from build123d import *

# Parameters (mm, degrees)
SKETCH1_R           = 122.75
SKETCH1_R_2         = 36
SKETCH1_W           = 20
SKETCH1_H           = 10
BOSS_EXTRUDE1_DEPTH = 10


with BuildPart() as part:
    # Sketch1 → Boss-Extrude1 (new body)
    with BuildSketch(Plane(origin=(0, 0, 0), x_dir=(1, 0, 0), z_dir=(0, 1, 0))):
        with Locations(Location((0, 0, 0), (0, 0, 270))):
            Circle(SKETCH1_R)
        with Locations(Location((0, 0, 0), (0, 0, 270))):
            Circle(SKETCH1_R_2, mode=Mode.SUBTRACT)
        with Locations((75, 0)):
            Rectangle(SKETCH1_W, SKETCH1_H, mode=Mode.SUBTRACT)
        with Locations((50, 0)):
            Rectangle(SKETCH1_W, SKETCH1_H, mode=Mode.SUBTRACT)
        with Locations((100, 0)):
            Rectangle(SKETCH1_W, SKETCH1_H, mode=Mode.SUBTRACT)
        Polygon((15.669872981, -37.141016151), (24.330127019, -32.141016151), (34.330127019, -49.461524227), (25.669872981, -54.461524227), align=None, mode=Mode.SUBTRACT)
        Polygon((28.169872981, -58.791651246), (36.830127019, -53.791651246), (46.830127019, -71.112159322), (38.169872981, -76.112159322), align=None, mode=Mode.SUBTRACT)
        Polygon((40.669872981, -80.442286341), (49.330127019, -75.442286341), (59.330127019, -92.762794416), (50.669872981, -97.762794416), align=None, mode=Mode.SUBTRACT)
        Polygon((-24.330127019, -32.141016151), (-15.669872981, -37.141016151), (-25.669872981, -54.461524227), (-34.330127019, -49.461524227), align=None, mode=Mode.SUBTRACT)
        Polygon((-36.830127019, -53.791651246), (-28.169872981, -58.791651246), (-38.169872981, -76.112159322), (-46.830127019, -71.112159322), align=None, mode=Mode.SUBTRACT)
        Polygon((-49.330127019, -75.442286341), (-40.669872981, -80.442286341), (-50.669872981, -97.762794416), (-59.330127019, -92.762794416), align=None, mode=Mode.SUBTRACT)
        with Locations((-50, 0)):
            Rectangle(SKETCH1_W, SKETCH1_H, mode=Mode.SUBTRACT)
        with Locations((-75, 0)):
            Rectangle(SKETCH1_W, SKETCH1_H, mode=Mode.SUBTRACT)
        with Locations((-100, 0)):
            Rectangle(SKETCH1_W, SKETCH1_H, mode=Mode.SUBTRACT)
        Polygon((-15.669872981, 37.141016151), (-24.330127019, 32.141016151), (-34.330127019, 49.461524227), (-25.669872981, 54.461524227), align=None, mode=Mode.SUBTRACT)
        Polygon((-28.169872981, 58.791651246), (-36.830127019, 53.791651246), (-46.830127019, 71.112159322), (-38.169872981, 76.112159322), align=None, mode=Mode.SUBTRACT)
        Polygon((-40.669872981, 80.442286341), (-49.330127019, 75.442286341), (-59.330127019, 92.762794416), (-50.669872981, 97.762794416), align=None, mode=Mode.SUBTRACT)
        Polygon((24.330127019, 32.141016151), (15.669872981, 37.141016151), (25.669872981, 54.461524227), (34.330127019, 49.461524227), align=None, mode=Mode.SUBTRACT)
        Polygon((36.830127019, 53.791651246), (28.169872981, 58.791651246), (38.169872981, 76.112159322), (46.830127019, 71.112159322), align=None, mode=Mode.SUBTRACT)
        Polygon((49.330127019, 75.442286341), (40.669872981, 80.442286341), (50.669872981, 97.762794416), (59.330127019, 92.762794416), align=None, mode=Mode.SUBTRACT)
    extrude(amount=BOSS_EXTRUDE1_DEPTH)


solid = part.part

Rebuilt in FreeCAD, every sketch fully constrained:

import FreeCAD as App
import Part
import Sketcher
Q = App.Units.Quantity

doc = App.newDocument("Part")
body = doc.addObject("PartDesign::Body", "Body")

sketch1 = doc.addObject("Sketcher::SketchObject", "Sketch")
body.addObject(sketch1)
sketch1.AttachmentSupport = (doc.XZ_Plane, [""])
sketch1.MapMode = "FlatFace"
sketch1.addGeometry(Part.Circle(App.Vector(0, 0, 0), App.Vector(0, 0, 1), 123), False)
sketch1.addGeometry(Part.LineSegment(App.Vector(-51, -98, 0), App.Vector(-41, -80, 0)), False)
sketch1.addGeometry(Part.LineSegment(App.Vector(-41, -80, 0), App.Vector(-49, -75, 0)), False)
sketch1.addGeometry(Part.LineSegment(App.Vector(-49, -75, 0), App.Vector(-59, -93, 0)), False)
sketch1.addGeometry(Part.LineSegment(App.Vector(-59, -93, 0), App.Vector(-51, -98, 0)), False)
sketch1.addGeometry(Part.LineSegment(App.Vector(-38, -76, 0), App.Vector(-28, -59, 0)), False)
sketch1.addGeometry(Part.LineSegment(App.Vector(-28, -59, 0), App.Vector(-37, -54, 0)), False)
sketch1.addGeometry(Part.LineSegment(App.Vector(-37, -54, 0), App.Vector(-47, -71, 0)), False)
sketch1.addGeometry(Part.LineSegment(App.Vector(-47, -71, 0), App.Vector(-38, -76, 0)), False)
sketch1.addGeometry(Part.LineSegment(App.Vector(-26, -54, 0), App.Vector(-16, -37, 0)), False)
sketch1.addGeometry(Part.LineSegment(App.Vector(-16, -37, 0), App.Vector(-24, -32, 0)), False)
sketch1.addGeometry(Part.LineSegment(App.Vector(-24, -32, 0), App.Vector(-34, -49, 0)), False)
sketch1.addGeometry(Part.LineSegment(App.Vector(-34, -49, 0), App.Vector(-26, -54, 0)), False)
sketch1.addGeometry(Part.LineSegment(App.Vector(-90, 5, 0), App.Vector(-110, 5, 0)), False)
sketch1.addGeometry(Part.LineSegment(App.Vector(-110, 5, 0), App.Vector(-110, -5, 0)), False)
sketch1.addGeometry(Part.LineSegment(App.Vector(-110, -5, 0), App.Vector(-90, -5, 0)), False)
sketch1.addGeometry(Part.LineSegment(App.Vector(-90, -5, 0), App.Vector(-90, 5, 0)), False)
sketch1.addGeometry(Part.LineSegment(App.Vector(-65, 5, 0), App.Vector(-85, 5, 0)), False)
sketch1.addGeometry(Part.LineSegment(App.Vector(-85, 5, 0), App.Vector(-85, -5, 0)), False)
sketch1.addGeometry(Part.LineSegment(App.Vector(-85, -5, 0), App.Vector(-65, -5, 0)), False)
sketch1.addGeometry(Part.LineSegment(App.Vector(-65, -5, 0), App.Vector(-65, 5, 0)), False)
sketch1.addGeometry(Part.LineSegment(App.Vector(-40, 5, 0), App.Vector(-60, 5, 0)), False)
sketch1.addGeometry(Part.LineSegment(App.Vector(-60, 5, 0), App.Vector(-60, -5, 0)), False)
sketch1.addGeometry(Part.LineSegment(App.Vector(-60, -5, 0), App.Vector(-40, -5, 0)), False)
sketch1.addGeometry(Part.LineSegment(App.Vector(-40, -5, 0), App.Vector(-40, 5, 0)), False)
sketch1.addGeometry(Part.LineSegment(App.Vector(-34, 49, 0), App.Vector(-24, 32, 0)), False)
sketch1.addGeometry(Part.LineSegment(App.Vector(-24, 32, 0), App.Vector(-16, 37, 0)), False)
sketch1.addGeometry(Part.LineSegment(App.Vector(-16, 37, 0), App.Vector(-26, 54, 0)), False)
sketch1.addGeometry(Part.LineSegment(App.Vector(-26, 54, 0), App.Vector(-34, 49, 0)), False)
sketch1.addGeometry(Part.LineSegment(App.Vector(-47, 71, 0), App.Vector(-37, 54, 0)), False)
sketch1.addGeometry(Part.LineSegment(App.Vector(-37, 54, 0), App.Vector(-28, 59, 0)), False)
sketch1.addGeometry(Part.LineSegment(App.Vector(-28, 59, 0), App.Vector(-38, 76, 0)), False)
sketch1.addGeometry(Part.LineSegment(App.Vector(-38, 76, 0), App.Vector(-47, 71, 0)), False)
sketch1.addGeometry(Part.LineSegment(App.Vector(-59, 93, 0), App.Vector(-49, 75, 0)), False)
sketch1.addGeometry(Part.LineSegment(App.Vector(-49, 75, 0), App.Vector(-41, 80, 0)), False)
sketch1.addGeometry(Part.LineSegment(App.Vector(-41, 80, 0), App.Vector(-51, 98, 0)), False)
sketch1.addGeometry(Part.LineSegment(App.Vector(-51, 98, 0), App.Vector(-59, 93, 0)), False)
sketch1.addGeometry(Part.LineSegment(App.Vector(59, -93, 0), App.Vector(49, -75, 0)), False)
sketch1.addGeometry(Part.LineSegment(App.Vector(49, -75, 0), App.Vector(41, -80, 0)), False)
sketch1.addGeometry(Part.LineSegment(App.Vector(41, -80, 0), App.Vector(51, -98, 0)), False)
sketch1.addGeometry(Part.LineSegment(App.Vector(51, -98, 0), App.Vector(59, -93, 0)), False)
sketch1.addGeometry(Part.LineSegment(App.Vector(47, -71, 0), App.Vector(37, -54, 0)), False)
sketch1.addGeometry(Part.LineSegment(App.Vector(37, -54, 0), App.Vector(28, -59, 0)), False)
sketch1.addGeometry(Part.LineSegment(App.Vector(28, -59, 0), App.Vector(38, -76, 0)), False)
sketch1.addGeometry(Part.LineSegment(App.Vector(38, -76, 0), App.Vector(47, -71, 0)), False)
sketch1.addGeometry(Part.LineSegment(App.Vector(34, -49, 0), App.Vector(24, -32, 0)), False)
sketch1.addGeometry(Part.LineSegment(App.Vector(24, -32, 0), App.Vector(16, -37, 0)), False)
sketch1.addGeometry(Part.LineSegment(App.Vector(16, -37, 0), App.Vector(26, -54, 0)), False)
sketch1.addGeometry(Part.LineSegment(App.Vector(26, -54, 0), App.Vector(34, -49, 0)), False)
sketch1.addGeometry(Part.LineSegment(App.Vector(85, 5, 0), App.Vector(65, 5, 0)), False)
sketch1.addGeometry(Part.LineSegment(App.Vector(65, 5, 0), App.Vector(65, -5, 0)), False)
sketch1.addGeometry(Part.LineSegment(App.Vector(65, -5, 0), App.Vector(85, -5, 0)), False)
sketch1.addGeometry(Part.LineSegment(App.Vector(85, -5, 0), App.Vector(85, 5, 0)), False)
sketch1.addGeometry(Part.LineSegment(App.Vector(110, 5, 0), App.Vector(90, 5, 0)), False)
sketch1.addGeometry(Part.LineSegment(App.Vector(90, 5, 0), App.Vector(90, -5, 0)), False)
sketch1.addGeometry(Part.LineSegment(App.Vector(90, -5, 0), App.Vector(110, -5, 0)), False)
sketch1.addGeometry(Part.LineSegment(App.Vector(110, -5, 0), App.Vector(110, 5, 0)), False)
sketch1.addGeometry(Part.Circle(App.Vector(0, 0, 0), App.Vector(0, 0, 1), 36), False)
sketch1.addGeometry(Part.LineSegment(App.Vector(26, 54, 0), App.Vector(16, 37, 0)), False)
sketch1.addGeometry(Part.LineSegment(App.Vector(16, 37, 0), App.Vector(24, 32, 0)), False)
sketch1.addGeometry(Part.LineSegment(App.Vector(24, 32, 0), App.Vector(34, 49, 0)), False)
sketch1.addGeometry(Part.LineSegment(App.Vector(34, 49, 0), App.Vector(26, 54, 0)), False)
sketch1.addGeometry(Part.LineSegment(App.Vector(60, 5, 0), App.Vector(40, 5, 0)), False)
sketch1.addGeometry(Part.LineSegment(App.Vector(40, 5, 0), App.Vector(40, -5, 0)), False)
sketch1.addGeometry(Part.LineSegment(App.Vector(40, -5, 0), App.Vector(60, -5, 0)), False)
sketch1.addGeometry(Part.LineSegment(App.Vector(60, -5, 0), App.Vector(60, 5, 0)), False)
sketch1.addGeometry(Part.LineSegment(App.Vector(38, 76, 0), App.Vector(28, 59, 0)), False)
sketch1.addGeometry(Part.LineSegment(App.Vector(28, 59, 0), App.Vector(37, 54, 0)), False)
sketch1.addGeometry(Part.LineSegment(App.Vector(37, 54, 0), App.Vector(47, 71, 0)), False)
sketch1.addGeometry(Part.LineSegment(App.Vector(47, 71, 0), App.Vector(38, 76, 0)), False)
sketch1.addGeometry(Part.LineSegment(App.Vector(51, 98, 0), App.Vector(41, 80, 0)), False)
sketch1.addGeometry(Part.LineSegment(App.Vector(41, 80, 0), App.Vector(49, 75, 0)), False)
sketch1.addGeometry(Part.LineSegment(App.Vector(49, 75, 0), App.Vector(59, 93, 0)), False)
sketch1.addGeometry(Part.LineSegment(App.Vector(59, 93, 0), App.Vector(51, 98, 0)), False)
sketch1.addConstraint(Sketcher.Constraint("Coincident", 1, 2, 2, 1))
sketch1.addConstraint(Sketcher.Constraint("Coincident", 2, 2, 3, 1))
sketch1.addConstraint(Sketcher.Constraint("Coincident", 3, 2, 4, 1))
sketch1.addConstraint(Sketcher.Constraint("Coincident", 4, 2, 1, 1))
sketch1.addConstraint(Sketcher.Constraint("Coincident", 5, 2, 6, 1))
sketch1.addConstraint(Sketcher.Constraint("Coincident", 6, 2, 7, 1))
sketch1.addConstraint(Sketcher.Constraint("Coincident", 7, 2, 8, 1))
sketch1.addConstraint(Sketcher.Constraint("Coincident", 8, 2, 5, 1))
sketch1.addConstraint(Sketcher.Constraint("Coincident", 9, 2, 10, 1))
sketch1.addConstraint(Sketcher.Constraint("Coincident", 10, 2, 11, 1))
sketch1.addConstraint(Sketcher.Constraint("Coincident", 11, 2, 12, 1))
sketch1.addConstraint(Sketcher.Constraint("Coincident", 12, 2, 9, 1))
sketch1.addConstraint(Sketcher.Constraint("Coincident", 13, 2, 14, 1))
sketch1.addConstraint(Sketcher.Constraint("Coincident", 14, 2, 15, 1))
sketch1.addConstraint(Sketcher.Constraint("Coincident", 15, 2, 16, 1))
sketch1.addConstraint(Sketcher.Constraint("Coincident", 16, 2, 13, 1))
sketch1.addConstraint(Sketcher.Constraint("Coincident", 17, 2, 18, 1))
sketch1.addConstraint(Sketcher.Constraint("Coincident", 18, 2, 19, 1))
sketch1.addConstraint(Sketcher.Constraint("Coincident", 19, 2, 20, 1))
sketch1.addConstraint(Sketcher.Constraint("Coincident", 20, 2, 17, 1))
sketch1.addConstraint(Sketcher.Constraint("Coincident", 21, 2, 22, 1))
sketch1.addConstraint(Sketcher.Constraint("Coincident", 22, 2, 23, 1))
sketch1.addConstraint(Sketcher.Constraint("Coincident", 23, 2, 24, 1))
sketch1.addConstraint(Sketcher.Constraint("Coincident", 24, 2, 21, 1))
sketch1.addConstraint(Sketcher.Constraint("Coincident", 25, 2, 26, 1))
sketch1.addConstraint(Sketcher.Constraint("Coincident", 26, 2, 27, 1))
sketch1.addConstraint(Sketcher.Constraint("Coincident", 27, 2, 28, 1))
sketch1.addConstraint(Sketcher.Constraint("Coincident", 28, 2, 25, 1))
sketch1.addConstraint(Sketcher.Constraint("Coincident", 29, 2, 30, 1))
sketch1.addConstraint(Sketcher.Constraint("Coincident", 30, 2, 31, 1))
sketch1.addConstraint(Sketcher.Constraint("Coincident", 31, 2, 32, 1))
sketch1.addConstraint(Sketcher.Constraint("Coincident", 32, 2, 29, 1))
sketch1.addConstraint(Sketcher.Constraint("Coincident", 33, 2, 34, 1))
sketch1.addConstraint(Sketcher.Constraint("Coincident", 34, 2, 35, 1))
sketch1.addConstraint(Sketcher.Constraint("Coincident", 35, 2, 36, 1))
sketch1.addConstraint(Sketcher.Constraint("Coincident", 36, 2, 33, 1))
sketch1.addConstraint(Sketcher.Constraint("Coincident", 37, 2, 38, 1))
sketch1.addConstraint(Sketcher.Constraint("Coincident", 38, 2, 39, 1))
sketch1.addConstraint(Sketcher.Constraint("Coincident", 39, 2, 40, 1))
sketch1.addConstraint(Sketcher.Constraint("Coincident", 40, 2, 37, 1))
sketch1.addConstraint(Sketcher.Constraint("Coincident", 41, 2, 42, 1))
sketch1.addConstraint(Sketcher.Constraint("Coincident", 42, 2, 43, 1))
sketch1.addConstraint(Sketcher.Constraint("Coincident", 43, 2, 44, 1))
sketch1.addConstraint(Sketcher.Constraint("Coincident", 44, 2, 41, 1))
sketch1.addConstraint(Sketcher.Constraint("Coincident", 45, 2, 46, 1))
sketch1.addConstraint(Sketcher.Constraint("Coincident", 46, 2, 47, 1))
sketch1.addConstraint(Sketcher.Constraint("Coincident", 47, 2, 48, 1))
sketch1.addConstraint(Sketcher.Constraint("Coincident", 48, 2, 45, 1))
sketch1.addConstraint(Sketcher.Constraint("Coincident", 49, 2, 50, 1))
sketch1.addConstraint(Sketcher.Constraint("Coincident", 50, 2, 51, 1))
sketch1.addConstraint(Sketcher.Constraint("Coincident", 51, 2, 52, 1))
sketch1.addConstraint(Sketcher.Constraint("Coincident", 52, 2, 49, 1))
sketch1.addConstraint(Sketcher.Constraint("Coincident", 53, 2, 54, 1))
sketch1.addConstraint(Sketcher.Constraint("Coincident", 54, 2, 55, 1))
sketch1.addConstraint(Sketcher.Constraint("Coincident", 55, 2, 56, 1))
sketch1.addConstraint(Sketcher.Constraint("Coincident", 56, 2, 53, 1))
sketch1.addConstraint(Sketcher.Constraint("Coincident", 58, 2, 59, 1))
sketch1.addConstraint(Sketcher.Constraint("Coincident", 59, 2, 60, 1))
sketch1.addConstraint(Sketcher.Constraint("Coincident", 60, 2, 61, 1))
sketch1.addConstraint(Sketcher.Constraint("Coincident", 61, 2, 58, 1))
sketch1.addConstraint(Sketcher.Constraint("Coincident", 62, 2, 63, 1))
sketch1.addConstraint(Sketcher.Constraint("Coincident", 63, 2, 64, 1))
sketch1.addConstraint(Sketcher.Constraint("Coincident", 64, 2, 65, 1))
sketch1.addConstraint(Sketcher.Constraint("Coincident", 65, 2, 62, 1))
sketch1.addConstraint(Sketcher.Constraint("Coincident", 66, 2, 67, 1))
sketch1.addConstraint(Sketcher.Constraint("Coincident", 67, 2, 68, 1))
sketch1.addConstraint(Sketcher.Constraint("Coincident", 68, 2, 69, 1))
sketch1.addConstraint(Sketcher.Constraint("Coincident", 69, 2, 66, 1))
sketch1.addConstraint(Sketcher.Constraint("Coincident", 70, 2, 71, 1))
sketch1.addConstraint(Sketcher.Constraint("Coincident", 71, 2, 72, 1))
sketch1.addConstraint(Sketcher.Constraint("Coincident", 72, 2, 73, 1))
sketch1.addConstraint(Sketcher.Constraint("Coincident", 73, 2, 70, 1))
sketch1.addConstraint(Sketcher.Constraint("Horizontal", 13))
sketch1.addConstraint(Sketcher.Constraint("Vertical", 14))
sketch1.addConstraint(Sketcher.Constraint("Horizontal", 15))
sketch1.addConstraint(Sketcher.Constraint("Vertical", 16))
sketch1.addConstraint(Sketcher.Constraint("Horizontal", 17))
sketch1.addConstraint(Sketcher.Constraint("Vertical", 18))
sketch1.addConstraint(Sketcher.Constraint("Horizontal", 19))
sketch1.addConstraint(Sketcher.Constraint("Vertical", 20))
sketch1.addConstraint(Sketcher.Constraint("Horizontal", 21))
sketch1.addConstraint(Sketcher.Constraint("Vertical", 22))
sketch1.addConstraint(Sketcher.Constraint("Horizontal", 23))
sketch1.addConstraint(Sketcher.Constraint("Vertical", 24))
sketch1.addConstraint(Sketcher.Constraint("Horizontal", 49))
sketch1.addConstraint(Sketcher.Constraint("Vertical", 50))
sketch1.addConstraint(Sketcher.Constraint("Horizontal", 51))
sketch1.addConstraint(Sketcher.Constraint("Vertical", 52))
sketch1.addConstraint(Sketcher.Constraint("Horizontal", 53))
sketch1.addConstraint(Sketcher.Constraint("Vertical", 54))
sketch1.addConstraint(Sketcher.Constraint("Horizontal", 55))
sketch1.addConstraint(Sketcher.Constraint("Vertical", 56))
sketch1.addConstraint(Sketcher.Constraint("Horizontal", 62))
sketch1.addConstraint(Sketcher.Constraint("Vertical", 63))
sketch1.addConstraint(Sketcher.Constraint("Horizontal", 64))
sketch1.addConstraint(Sketcher.Constraint("Vertical", 65))
sketch1.addConstraint(Sketcher.Constraint("Coincident", 0, 3, -1, 1))
sketch1.addConstraint(Sketcher.Constraint("Coincident", 57, 3, -1, 1))
sketch1.addConstraint(Sketcher.Constraint("Symmetric", 33, 2, 37, 2, -1, 1))
sketch1.addConstraint(Sketcher.Constraint("Symmetric", 34, 2, 38, 2, -1, 1))
sketch1.addConstraint(Sketcher.Constraint("Symmetric", 35, 2, 39, 2, -1, 1))
sketch1.addConstraint(Sketcher.Constraint("Symmetric", 36, 2, 40, 2, -1, 1))
sketch1.addConstraint(Sketcher.Constraint("Symmetric", 29, 2, 41, 2, -1, 1))
sketch1.addConstraint(Sketcher.Constraint("Symmetric", 30, 2, 42, 2, -1, 1))
sketch1.addConstraint(Sketcher.Constraint("Symmetric", 31, 2, 43, 2, -1, 1))
sketch1.addConstraint(Sketcher.Constraint("Symmetric", 32, 2, 44, 2, -1, 1))
sketch1.addConstraint(Sketcher.Constraint("Symmetric", 25, 2, 45, 2, -1, 1))
sketch1.addConstraint(Sketcher.Constraint("Symmetric", 26, 2, 46, 2, -1, 1))
sketch1.addConstraint(Sketcher.Constraint("Symmetric", 27, 2, 47, 2, -1, 1))
sketch1.addConstraint(Sketcher.Constraint("Symmetric", 28, 2, 48, 2, -1, 1))
sketch1.addConstraint(Sketcher.Constraint("Symmetric", 19, 2, 49, 2, -1, 1))
sketch1.addConstraint(Sketcher.Constraint("Symmetric", 17, 2, 51, 2, -1, 1))
sketch1.addConstraint(Sketcher.Constraint("Symmetric", 15, 2, 53, 2, -1, 1))
sketch1.addConstraint(Sketcher.Constraint("Symmetric", 13, 2, 55, 2, -1, 1))
sketch1.addConstraint(Sketcher.Constraint("Symmetric", 9, 2, 58, 2, -1, 1))
sketch1.addConstraint(Sketcher.Constraint("Symmetric", 10, 2, 59, 2, -1, 1))
sketch1.addConstraint(Sketcher.Constraint("Symmetric", 11, 2, 60, 2, -1, 1))
sketch1.addConstraint(Sketcher.Constraint("Symmetric", 12, 2, 61, 2, -1, 1))
sketch1.addConstraint(Sketcher.Constraint("Symmetric", 23, 2, 62, 2, -1, 1))
sketch1.addConstraint(Sketcher.Constraint("Symmetric", 21, 2, 64, 2, -1, 1))
sketch1.addConstraint(Sketcher.Constraint("Symmetric", 5, 2, 66, 2, -1, 1))
sketch1.addConstraint(Sketcher.Constraint("Symmetric", 6, 2, 67, 2, -1, 1))
sketch1.addConstraint(Sketcher.Constraint("Symmetric", 7, 2, 68, 2, -1, 1))
sketch1.addConstraint(Sketcher.Constraint("Symmetric", 8, 2, 69, 2, -1, 1))
sketch1.addConstraint(Sketcher.Constraint("Symmetric", 1, 2, 70, 2, -1, 1))
sketch1.addConstraint(Sketcher.Constraint("Symmetric", 2, 2, 71, 2, -1, 1))
sketch1.addConstraint(Sketcher.Constraint("Symmetric", 3, 2, 72, 2, -1, 1))
sketch1.addConstraint(Sketcher.Constraint("Symmetric", 4, 2, 73, 2, -1, 1))
sketch1.addConstraint(Sketcher.Constraint("Symmetric", 2, 2, 37, 2, -2))
sketch1.addConstraint(Sketcher.Constraint("Symmetric", 1, 2, 38, 2, -2))
sketch1.addConstraint(Sketcher.Constraint("Symmetric", 4, 2, 39, 2, -2))
sketch1.addConstraint(Sketcher.Constraint("Symmetric", 3, 2, 40, 2, -2))
sketch1.addConstraint(Sketcher.Constraint("Symmetric", 6, 2, 41, 2, -2))
sketch1.addConstraint(Sketcher.Constraint("Symmetric", 5, 2, 42, 2, -2))
sketch1.addConstraint(Sketcher.Constraint("Symmetric", 8, 2, 43, 2, -2))
sketch1.addConstraint(Sketcher.Constraint("Symmetric", 7, 2, 44, 2, -2))
sketch1.addConstraint(Sketcher.Constraint("Symmetric", 10, 2, 45, 2, -2))
sketch1.addConstraint(Sketcher.Constraint("Symmetric", 9, 2, 46, 2, -2))
sketch1.addConstraint(Sketcher.Constraint("Symmetric", 12, 2, 47, 2, -2))
sketch1.addConstraint(Sketcher.Constraint("Symmetric", 11, 2, 48, 2, -2))
sketch1.addConstraint(Sketcher.Constraint("Perpendicular", 1, 2))
sketch1.addConstraint(Sketcher.Constraint("Perpendicular", 2, 3))
sketch1.addConstraint(Sketcher.Constraint("Perpendicular", 3, 4))
sketch1.addConstraint(Sketcher.Constraint("Perpendicular", 4, 5))
sketch1.addConstraint(Sketcher.Constraint("Perpendicular", 5, 6))
sketch1.addConstraint(Sketcher.Constraint("Perpendicular", 6, 7))
sketch1.addConstraint(Sketcher.Constraint("Perpendicular", 7, 8))
sketch1.addConstraint(Sketcher.Constraint("Perpendicular", 8, 9))
sketch1.addConstraint(Sketcher.Constraint("Perpendicular", 9, 10))
sketch1.addConstraint(Sketcher.Constraint("Perpendicular", 10, 11))
sketch1.addConstraint(Sketcher.Constraint("Perpendicular", 11, 12))
sketch1.addConstraint(Sketcher.Constraint("Horizontal", 16, 2, 17, 2))
sketch1.addConstraint(Sketcher.Constraint("Horizontal", 15, 2, 18, 2))
sketch1.addConstraint(Sketcher.Constraint("Horizontal", 20, 2, 21, 2))
sketch1.addConstraint(Sketcher.Constraint("Horizontal", 19, 2, 22, 2))
sketch1.addConstraint(Sketcher.Constraint("Horizontal", 24, 2, 49, 2))
sketch1.addConstraint(Sketcher.Constraint("Equal", 15, 17))
sketch1.addConstraint(Sketcher.Constraint("Equal", 19, 21))
sketch1.addConstraint(Sketcher.Constraint("Equal", 3, 5))
sketch1.addConstraint(Sketcher.Constraint("Equal", 4, 6))
sketch1.addConstraint(Sketcher.Constraint("Equal", 7, 9))
sketch1.addConstraint(Sketcher.Constraint("Equal", 8, 10))
sketch1.addConstraint(Sketcher.Constraint("Diameter", 57, 72.0))
sketch1.addConstraint(Sketcher.Constraint("Diameter", 0, 245.5))
sketch1.addConstraint(Sketcher.Constraint("DistanceX", 13, 2, 13, 1, 20.0))
sketch1.addConstraint(Sketcher.Constraint("DistanceY", 14, 2, 14, 1, 10.0))
sketch1.addConstraint(Sketcher.Constraint("Angle", 1, Q("60 deg")))
sketch1.addConstraint(Sketcher.Constraint("Distance", 1, 20.0))
sketch1.addConstraint(Sketcher.Constraint("Distance", 2, 10.0))
sketch1.addConstraint(Sketcher.Constraint("DistanceX", 13, 2, -1, 1, 110.0))
sketch1.addConstraint(Sketcher.Constraint("DistanceX", 17, 2, -1, 1, 85.0))
sketch1.addConstraint(Sketcher.Constraint("DistanceX", 21, 2, -1, 1, 60.0))
sketch1.addConstraint(Sketcher.Constraint("DistanceY", 5, 2, -1, 1, 58.791651))
sketch1.addConstraint(Sketcher.Constraint("DistanceX", 1, 2, -1, 1, 40.669873))
sketch1.addConstraint(Sketcher.Constraint("DistanceY", 1, 2, -1, 1, 80.442286))
sketch1.addConstraint(Sketcher.Constraint("DistanceX", 5, 2, -1, 1, 28.169873))
sketch1.addConstraint(Sketcher.Constraint("DistanceX", 9, 2, -1, 1, 15.669873))
sketch1.addConstraint(Sketcher.Constraint("DistanceY", 9, 2, -1, 1, 37.141016))
pad1 = doc.addObject("PartDesign::Pad", "Pad")
body.addObject(pad1)
pad1.Profile = sketch1
pad1.Length = 10
pad1.Reversed = True

doc.recompute()
